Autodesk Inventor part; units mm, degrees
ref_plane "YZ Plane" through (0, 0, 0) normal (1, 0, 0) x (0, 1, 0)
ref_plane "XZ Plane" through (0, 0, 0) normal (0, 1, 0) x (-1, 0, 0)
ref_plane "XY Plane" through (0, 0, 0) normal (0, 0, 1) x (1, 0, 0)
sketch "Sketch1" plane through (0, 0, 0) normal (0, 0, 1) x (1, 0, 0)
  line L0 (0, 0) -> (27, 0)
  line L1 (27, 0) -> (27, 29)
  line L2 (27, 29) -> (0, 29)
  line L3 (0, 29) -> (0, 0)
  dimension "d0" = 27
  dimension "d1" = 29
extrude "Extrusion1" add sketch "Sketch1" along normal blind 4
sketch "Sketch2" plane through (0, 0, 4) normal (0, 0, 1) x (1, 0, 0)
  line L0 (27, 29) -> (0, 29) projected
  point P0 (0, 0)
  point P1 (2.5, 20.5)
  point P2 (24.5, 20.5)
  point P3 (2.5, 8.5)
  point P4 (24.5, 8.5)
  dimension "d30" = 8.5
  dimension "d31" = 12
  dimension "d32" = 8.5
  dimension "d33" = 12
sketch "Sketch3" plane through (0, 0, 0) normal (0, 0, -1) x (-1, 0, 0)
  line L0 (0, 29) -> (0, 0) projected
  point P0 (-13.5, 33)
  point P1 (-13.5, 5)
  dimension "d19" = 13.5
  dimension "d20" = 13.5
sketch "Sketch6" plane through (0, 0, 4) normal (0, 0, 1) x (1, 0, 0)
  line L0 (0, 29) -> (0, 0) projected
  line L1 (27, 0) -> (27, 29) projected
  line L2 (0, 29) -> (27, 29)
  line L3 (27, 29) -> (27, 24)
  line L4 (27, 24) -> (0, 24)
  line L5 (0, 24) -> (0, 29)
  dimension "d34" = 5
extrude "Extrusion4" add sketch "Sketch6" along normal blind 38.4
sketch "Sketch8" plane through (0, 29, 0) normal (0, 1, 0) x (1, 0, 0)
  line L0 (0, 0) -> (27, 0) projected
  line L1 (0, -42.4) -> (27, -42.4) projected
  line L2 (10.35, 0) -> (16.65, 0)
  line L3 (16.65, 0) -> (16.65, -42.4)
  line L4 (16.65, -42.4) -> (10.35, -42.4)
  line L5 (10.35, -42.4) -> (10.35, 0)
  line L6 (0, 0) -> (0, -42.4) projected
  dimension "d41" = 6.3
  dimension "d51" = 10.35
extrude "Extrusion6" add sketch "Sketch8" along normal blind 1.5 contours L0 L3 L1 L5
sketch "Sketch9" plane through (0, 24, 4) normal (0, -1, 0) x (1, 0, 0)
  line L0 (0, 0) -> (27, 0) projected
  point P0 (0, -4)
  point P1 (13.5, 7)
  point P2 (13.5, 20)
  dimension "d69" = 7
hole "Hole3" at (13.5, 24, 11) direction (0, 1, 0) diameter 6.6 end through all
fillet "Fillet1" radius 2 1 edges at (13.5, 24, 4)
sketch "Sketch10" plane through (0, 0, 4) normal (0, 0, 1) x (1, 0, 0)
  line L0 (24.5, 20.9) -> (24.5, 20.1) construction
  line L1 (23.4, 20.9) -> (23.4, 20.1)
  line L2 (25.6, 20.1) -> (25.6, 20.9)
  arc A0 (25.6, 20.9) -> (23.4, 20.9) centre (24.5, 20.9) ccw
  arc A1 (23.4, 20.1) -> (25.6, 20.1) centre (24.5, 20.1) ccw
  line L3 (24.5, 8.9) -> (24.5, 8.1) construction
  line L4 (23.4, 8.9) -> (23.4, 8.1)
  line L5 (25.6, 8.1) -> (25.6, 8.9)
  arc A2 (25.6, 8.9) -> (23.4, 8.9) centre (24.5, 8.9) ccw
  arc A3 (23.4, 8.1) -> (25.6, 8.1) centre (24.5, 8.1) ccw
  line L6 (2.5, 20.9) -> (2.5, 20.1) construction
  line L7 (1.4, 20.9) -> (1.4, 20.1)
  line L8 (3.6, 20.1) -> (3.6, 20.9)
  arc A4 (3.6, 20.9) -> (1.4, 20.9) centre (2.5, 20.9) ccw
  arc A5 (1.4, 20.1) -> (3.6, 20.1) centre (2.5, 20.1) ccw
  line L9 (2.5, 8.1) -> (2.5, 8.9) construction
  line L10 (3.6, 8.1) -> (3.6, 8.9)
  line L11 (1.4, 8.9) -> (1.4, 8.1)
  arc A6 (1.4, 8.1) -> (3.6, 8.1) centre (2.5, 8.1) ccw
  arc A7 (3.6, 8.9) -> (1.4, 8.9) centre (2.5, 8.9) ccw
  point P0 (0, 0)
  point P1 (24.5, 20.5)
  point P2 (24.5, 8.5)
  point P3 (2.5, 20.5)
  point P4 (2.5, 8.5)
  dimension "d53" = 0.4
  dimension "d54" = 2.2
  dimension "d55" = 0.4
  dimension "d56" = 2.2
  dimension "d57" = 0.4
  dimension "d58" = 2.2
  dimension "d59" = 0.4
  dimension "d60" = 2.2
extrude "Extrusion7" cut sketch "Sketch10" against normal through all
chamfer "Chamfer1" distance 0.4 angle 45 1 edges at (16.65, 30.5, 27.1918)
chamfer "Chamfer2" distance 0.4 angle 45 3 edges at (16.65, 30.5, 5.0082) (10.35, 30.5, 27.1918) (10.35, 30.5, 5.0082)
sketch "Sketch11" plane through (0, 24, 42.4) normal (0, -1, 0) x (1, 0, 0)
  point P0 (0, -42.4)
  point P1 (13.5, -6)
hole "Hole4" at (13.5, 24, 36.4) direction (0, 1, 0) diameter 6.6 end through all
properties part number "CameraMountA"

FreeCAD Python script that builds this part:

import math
import FreeCAD as App
import Part
import Sketcher


def edges_at(feature, points):
    """Names of the edges that pass closest to the given points."""
    edges = feature.Shape.Edges
    near = lambda p: min(range(len(edges)), key=lambda i: edges[i].distToShape(Part.Vertex(*p))[0])
    return sorted({f"Edge{near(p) + 1}" for p in points})


def add_polygon(sketch, points):
    """Adds a closed chain of lines whose ends are joined by coincident constraints."""
    first, n = sketch.GeometryCount, len(points)
    for a, b in zip(points, points[1:] + points[:1]):
        sketch.addGeometry(Part.LineSegment(App.Vector(*a, 0), App.Vector(*b, 0)), False)
    for i in range(n):
        sketch.addConstraint(Sketcher.Constraint("Coincident", first + i, 2, first + (i + 1) % n, 1))

doc = App.newDocument("Part")
params = doc.addObject("Spreadsheet::Sheet", "Params")
for row, (alias, value) in enumerate([
    ("sketch1_width", "27 mm"),
    ("sketch1_height", "29 mm"),
    ("pad1_length", "4 mm"),
    ("sketch2_height", "5 mm"),
    ("sketch2_width", "27 mm"),
    ("pad2_length", "38.4 mm"),
    ("sketch3_width", "6.3 mm"),
    ("sketch3_height", "42.4 mm"),
    ("pad3_length", "1.5 mm"),
    ("sketch4_diameter", "6.6 mm"),
    ("hole_diameter", "6.6 mm"),
    ("fillet_radius", "2 mm"),
    ("sketch5_radius", "1.1 mm"),
    ("sketch5_height", "0.8 mm"),
    ("chamfer_size", "0.4 mm"),
    ("chamfer2_size", "0.4 mm"),
    ("sketch6_diameter", "6.6 mm"),
    ("hole2_diameter", "6.6 mm"),
], start=1):
    params.set(f"A{row}", alias)
    params.set(f"B{row}", "=" + value)
    params.setAlias(f"B{row}", alias)

body = doc.addObject("PartDesign::Body", "Body")

# Sketch on XY plane
sketch1 = body.newObject("Sketcher::SketchObject", "Sketch")
sketch1.AttachmentSupport = (doc.getObject("XY_Plane"), [""])
sketch1.MapMode = "FlatFace"
add_polygon(sketch1, [(0, 29), (0, 0), (27, 0), (27, 29)])  # lines 0-3
sketch1.addConstraint(Sketcher.Constraint("Vertical", 0))
sketch1.addConstraint(Sketcher.Constraint("Horizontal", 1))
sketch1.addConstraint(Sketcher.Constraint("Vertical", 2))
sketch1.addConstraint(Sketcher.Constraint("Horizontal", 3))
sketch1.addConstraint(Sketcher.Constraint("Coincident", 0, 2, -1, 1))
sketch1.addConstraint(Sketcher.Constraint("DistanceX", 1, 1, 1, 2, 27.0))
sketch1.addConstraint(Sketcher.Constraint("DistanceY", 0, 2, 0, 1, 29.0))
sketch1.setExpression("Constraints[9]", "Params.sketch1_width")
sketch1.setExpression("Constraints[10]", "Params.sketch1_height")
pad1 = body.newObject("PartDesign::Pad", "Pad")
pad1.Profile = sketch1
pad1.setExpression("Length", "Params.pad1_length")

# Sketch on XY plane
sketch2 = body.newObject("Sketcher::SketchObject", "Sketch001")
sketch2.AttachmentSupport = (doc.getObject("XY_Plane"), [""])
sketch2.MapMode = "FlatFace"
sketch2.AttachmentOffset = App.Placement(App.Vector(0, 0, 4), App.Rotation())
add_polygon(sketch2, [(27, 29), (0, 29), (0, 24), (27, 24)])  # lines 0-3
sketch2.addConstraint(Sketcher.Constraint("Horizontal", 0))
sketch2.addConstraint(Sketcher.Constraint("Vertical", 1))
sketch2.addConstraint(Sketcher.Constraint("Horizontal", 2))
sketch2.addConstraint(Sketcher.Constraint("Vertical", 3))
sketch2.addConstraint(Sketcher.Constraint("PointOnObject", 0, 2, -2))
sketch2.addConstraint(Sketcher.Constraint("DistanceY", 1, 2, 1, 1, 5.0))
sketch2.addConstraint(Sketcher.Constraint("DistanceX", 0, 2, 0, 1, 27.0))
sketch2.addConstraint(Sketcher.Constraint("DistanceY", -1, 1, 0, 2, 29.0))
sketch2.setExpression("Constraints[9]", "Params.sketch2_height")
sketch2.setExpression("Constraints[10]", "Params.sketch2_width")
pad2 = body.newObject("PartDesign::Pad", "Pad001")
pad2.Profile = sketch2
pad2.setExpression("Length", "Params.pad2_length")

# Sketch on XZ plane
sketch3 = body.newObject("Sketcher::SketchObject", "Sketch002")
sketch3.AttachmentSupport = (doc.getObject("XZ_Plane"), [""])
sketch3.MapMode = "FlatFace"
sketch3.AttachmentOffset = App.Placement(App.Vector(0, 0, -29), App.Rotation())
add_polygon(sketch3, [(17, 0), (10, 0), (10, 42), (17, 42)])  # lines 0-3
sketch3.addConstraint(Sketcher.Constraint("Horizontal", 0))
sketch3.addConstraint(Sketcher.Constraint("Vertical", 1))
sketch3.addConstraint(Sketcher.Constraint("Horizontal", 2))
sketch3.addConstraint(Sketcher.Constraint("Vertical", 3))
sketch3.addConstraint(Sketcher.Constraint("PointOnObject", 0, 2, -1))
sketch3.addConstraint(Sketcher.Constraint("DistanceX", 0, 2, 0, 1, 6.3))
sketch3.addConstraint(Sketcher.Constraint("DistanceX", -1, 1, 0, 2, 10.35))
sketch3.addConstraint(Sketcher.Constraint("DistanceY", 1, 1, 1, 2, 42.4))
sketch3.setExpression("Constraints[9]", "Params.sketch3_width")
sketch3.setExpression("Constraints[11]", "Params.sketch3_height")
pad3 = body.newObject("PartDesign::Pad", "Pad002")
pad3.Profile = sketch3
pad3.setExpression("Length", "Params.pad3_length")
pad3.Reversed = True

# Sketch on XZ plane
sketch4 = body.newObject("Sketcher::SketchObject", "Sketch003")
sketch4.AttachmentSupport = (doc.getObject("XZ_Plane"), [""])
sketch4.MapMode = "FlatFace"
sketch4.AttachmentOffset = App.Placement(App.Vector(0, 0, -24), App.Rotation())
sketch4.addGeometry(Part.Circle(App.Vector(13.5, 11, 0), App.Vector(0, 0, 1), 3.3), False)
sketch4.addConstraint(Sketcher.Constraint("Diameter", 0, 6.6))
sketch4.addConstraint(Sketcher.Constraint("DistanceY", -1, 1, 0, 3, 11.0))
sketch4.addConstraint(Sketcher.Constraint("DistanceX", -1, 1, 0, 3, 13.5))
sketch4.setExpression("Constraints[0]", "Params.sketch4_diameter")
doc.recompute()
hole = body.newObject("PartDesign::Hole", "Hole")
hole.Profile = sketch4
hole.ThreadType = "None"
hole.setExpression("Diameter", "Params.hole_diameter")
hole.DepthType = "ThroughAll"
doc.recompute()

fillet = body.newObject("PartDesign::Fillet", "Fillet")
fillet.Base = (hole, edges_at(hole, [(13.5, 24, 4)]))
fillet.setExpression("Radius", "Params.fillet_radius")

# Sketch on XY plane
sketch5 = body.newObject("Sketcher::SketchObject", "Sketch004")
sketch5.AttachmentSupport = (doc.getObject("XY_Plane"), [""])
sketch5.MapMode = "FlatFace"
sketch5.AttachmentOffset = App.Placement(App.Vector(0, 0, 4), App.Rotation())
sketch5.addGeometry(Part.ArcOfCircle(Part.Circle(App.Vector(24.5, 20.9, 0), App.Vector(0, 0, 1), 1.1), math.radians(0), math.radians(180)), False)
sketch5.addGeometry(Part.LineSegment(App.Vector(23.4, 20.9, 0), App.Vector(23.4, 20.1, 0)), False)
sketch5.addGeometry(Part.ArcOfCircle(Part.Circle(App.Vector(24.5, 20.1, 0), App.Vector(0, 0, 1), 1.1), math.radians(180), math.radians(360)), False)
sketch5.addGeometry(Part.LineSegment(App.Vector(25.6, 20.1, 0), App.Vector(25.6, 20.9, 0)), False)
sketch5.addGeometry(Part.ArcOfCircle(Part.Circle(App.Vector(24.5, 8.9, 0), App.Vector(0, 0, 1), 1.1), math.radians(0), math.radians(180)), False)
sketch5.addGeometry(Part.LineSegment(App.Vector(23.4, 8.9, 0), App.Vector(23.4, 8.1, 0)), False)
sketch5.addGeometry(Part.ArcOfCircle(Part.Circle(App.Vector(24.5, 8.1, 0), App.Vector(0, 0, 1), 1.1), math.radians(180), math.radians(360)), False)
sketch5.addGeometry(Part.LineSegment(App.Vector(25.6, 8.1, 0), App.Vector(25.6, 8.9, 0)), False)
sketch5.addGeometry(Part.ArcOfCircle(Part.Circle(App.Vector(2.5, 20.9, 0), App.Vector(0, 0, 1), 1.1), math.radians(0), math.radians(180)), False)
sketch5.addGeometry(Part.LineSegment(App.Vector(1.4, 20.9, 0), App.Vector(1.4, 20.1, 0)), False)
sketch5.addGeometry(Part.ArcOfCircle(Part.Circle(App.Vector(2.5, 20.1, 0), App.Vector(0, 0, 1), 1.1), math.radians(180), math.radians(360)), False)
sketch5.addGeometry(Part.LineSegment(App.Vector(3.6, 20.1, 0), App.Vector(3.6, 20.9, 0)), False)
sketch5.addGeometry(Part.ArcOfCircle(Part.Circle(App.Vector(2.5, 8.1, 0), App.Vector(0, 0, 1), 1.1), math.radians(180), math.radians(360)), False)
sketch5.addGeometry(Part.LineSegment(App.Vector(3.6, 8.1, 0), App.Vector(3.6, 8.9, 0)), False)
sketch5.addGeometry(Part.ArcOfCircle(Part.Circle(App.Vector(2.5, 8.9, 0), App.Vector(0, 0, 1), 1.1), math.radians(0), math.radians(180)), False)
sketch5.addGeometry(Part.LineSegment(App.Vector(1.4, 8.9, 0), App.Vector(1.4, 8.1, 0)), False)
sketch5.addConstraint(Sketcher.Constraint("Tangent", 0, 2, 1, 1))
sketch5.addConstraint(Sketcher.Constraint("Tangent", 1, 2, 2, 1))
sketch5.addConstraint(Sketcher.Constraint("Tangent", 2, 2, 3, 1))
sketch5.addConstraint(Sketcher.Constraint("Tangent", 3, 2, 0, 1))
sketch5.addConstraint(Sketcher.Constraint("Tangent", 4, 2, 5, 1))
sketch5.addConstraint(Sketcher.Constraint("Tangent", 5, 2, 6, 1))
sketch5.addConstraint(Sketcher.Constraint("Tangent", 6, 2, 7, 1))
sketch5.addConstraint(Sketcher.Constraint("Tangent", 7, 2, 4, 1))
sketch5.addConstraint(Sketcher.Constraint("Tangent", 8, 2, 9, 1))
sketch5.addConstraint(Sketcher.Constraint("Tangent", 9, 2, 10, 1))
sketch5.addConstraint(Sketcher.Constraint("Tangent", 10, 2, 11, 1))
sketch5.addConstraint(Sketcher.Constraint("Tangent", 11, 2, 8, 1))
sketch5.addConstraint(Sketcher.Constraint("Tangent", 12, 2, 13, 1))
sketch5.addConstraint(Sketcher.Constraint("Tangent", 13, 2, 14, 1))
sketch5.addConstraint(Sketcher.Constraint("Tangent", 14, 2, 15, 1))
sketch5.addConstraint(Sketcher.Constraint("Tangent", 15, 2, 12, 1))
sketch5.addConstraint(Sketcher.Constraint("Vertical", 1))
sketch5.addConstraint(Sketcher.Constraint("Vertical", 3))
sketch5.addConstraint(Sketcher.Constraint("Vertical", 5))
sketch5.addConstraint(Sketcher.Constraint("Vertical", 7))
sketch5.addConstraint(Sketcher.Constraint("Vertical", 9))
sketch5.addConstraint(Sketcher.Constraint("Vertical", 11))
sketch5.addConstraint(Sketcher.Constraint("Vertical", 13))
sketch5.addConstraint(Sketcher.Constraint("Vertical", 15))
sketch5.addConstraint(Sketcher.Constraint("Equal", 2, 4))
sketch5.addConstraint(Sketcher.Constraint("Equal", 6, 8))
sketch5.addConstraint(Sketcher.Constraint("Equal", 10, 12))
sketch5.addConstraint(Sketcher.Constraint("Horizontal", 0, 3, 8, 3))
sketch5.addConstraint(Sketcher.Constraint("Horizontal", 2, 3, 10, 3))
sketch5.addConstraint(Sketcher.Constraint("Horizontal", 6, 3, 12, 3))
sketch5.addConstraint(Sketcher.Constraint("Horizontal", 4, 3, 14, 3))
sketch5.addConstraint(Sketcher.Constraint("Vertical", 2, 3, 4, 3))
sketch5.addConstraint(Sketcher.Constraint("Vertical", 10, 3, 12, 3))
sketch5.addConstraint(Sketcher.Constraint("Equal", 3, 5))
sketch5.addConstraint(Sketcher.Constraint("Radius", 0, 1.1))
sketch5.addConstraint(Sketcher.Constraint("DistanceY", 1, 2, 1, 1, 0.8))
sketch5.addConstraint(Sketcher.Constraint("DistanceY", 4, 3, 0, 3, 12.0))
sketch5.addConstraint(Sketcher.Constraint("DistanceX", 8, 3, 0, 3, 22.0))
sketch5.addConstraint(Sketcher.Constraint("DistanceX", -1, 1, 0, 3, 24.5))
sketch5.addConstraint(Sketcher.Constraint("DistanceY", -1, 1, 0, 3, 20.9))
sketch5.setExpression("Constraints[34]", "Params.sketch5_radius")
sketch5.setExpression("Constraints[35]", "Params.sketch5_height")
pocket1 = body.newObject("PartDesign::Pocket", "Pocket")
pocket1.Profile = sketch5
pocket1.Type = "ThroughAll"
doc.recompute()

chamfer = body.newObject("PartDesign::Chamfer", "Chamfer")
chamfer.Base = (pocket1, edges_at(pocket1, [(16.65, 30.5, 27.192)]))
chamfer.setExpression("Size", "Params.chamfer_size")
doc.recompute()

chamfer2 = body.newObject("PartDesign::Chamfer", "Chamfer001")
chamfer2.Base = (chamfer, edges_at(chamfer, [(16.65, 30.5, 5.008), (10.35, 30.5, 27.192), (10.35, 30.5, 5.008)]))
chamfer2.setExpression("Size", "Params.chamfer2_size")

# Sketch on XZ plane
sketch6 = body.newObject("Sketcher::SketchObject", "Sketch005")
sketch6.AttachmentSupport = (doc.getObject("XZ_Plane"), [""])
sketch6.MapMode = "FlatFace"
sketch6.AttachmentOffset = App.Placement(App.Vector(0, 0, -24), App.Rotation())
sketch6.addGeometry(Part.Circle(App.Vector(13.5, 36.4, 0), App.Vector(0, 0, 1), 3.3), False)
sketch6.addConstraint(Sketcher.Constraint("Diameter", 0, 6.6))
sketch6.addConstraint(Sketcher.Constraint("DistanceX", -1, 1, 0, 3, 13.5))
sketch6.addConstraint(Sketcher.Constraint("DistanceY", -1, 1, 0, 3, 36.4))
sketch6.setExpression("Constraints[0]", "Params.sketch6_diameter")
doc.recompute()
hole2 = body.newObject("PartDesign::Hole", "Hole001")
hole2.Profile = sketch6
hole2.ThreadType = "None"
hole2.setExpression("Diameter", "Params.hole2_diameter")
hole2.DepthType = "ThroughAll"

doc.recompute()
